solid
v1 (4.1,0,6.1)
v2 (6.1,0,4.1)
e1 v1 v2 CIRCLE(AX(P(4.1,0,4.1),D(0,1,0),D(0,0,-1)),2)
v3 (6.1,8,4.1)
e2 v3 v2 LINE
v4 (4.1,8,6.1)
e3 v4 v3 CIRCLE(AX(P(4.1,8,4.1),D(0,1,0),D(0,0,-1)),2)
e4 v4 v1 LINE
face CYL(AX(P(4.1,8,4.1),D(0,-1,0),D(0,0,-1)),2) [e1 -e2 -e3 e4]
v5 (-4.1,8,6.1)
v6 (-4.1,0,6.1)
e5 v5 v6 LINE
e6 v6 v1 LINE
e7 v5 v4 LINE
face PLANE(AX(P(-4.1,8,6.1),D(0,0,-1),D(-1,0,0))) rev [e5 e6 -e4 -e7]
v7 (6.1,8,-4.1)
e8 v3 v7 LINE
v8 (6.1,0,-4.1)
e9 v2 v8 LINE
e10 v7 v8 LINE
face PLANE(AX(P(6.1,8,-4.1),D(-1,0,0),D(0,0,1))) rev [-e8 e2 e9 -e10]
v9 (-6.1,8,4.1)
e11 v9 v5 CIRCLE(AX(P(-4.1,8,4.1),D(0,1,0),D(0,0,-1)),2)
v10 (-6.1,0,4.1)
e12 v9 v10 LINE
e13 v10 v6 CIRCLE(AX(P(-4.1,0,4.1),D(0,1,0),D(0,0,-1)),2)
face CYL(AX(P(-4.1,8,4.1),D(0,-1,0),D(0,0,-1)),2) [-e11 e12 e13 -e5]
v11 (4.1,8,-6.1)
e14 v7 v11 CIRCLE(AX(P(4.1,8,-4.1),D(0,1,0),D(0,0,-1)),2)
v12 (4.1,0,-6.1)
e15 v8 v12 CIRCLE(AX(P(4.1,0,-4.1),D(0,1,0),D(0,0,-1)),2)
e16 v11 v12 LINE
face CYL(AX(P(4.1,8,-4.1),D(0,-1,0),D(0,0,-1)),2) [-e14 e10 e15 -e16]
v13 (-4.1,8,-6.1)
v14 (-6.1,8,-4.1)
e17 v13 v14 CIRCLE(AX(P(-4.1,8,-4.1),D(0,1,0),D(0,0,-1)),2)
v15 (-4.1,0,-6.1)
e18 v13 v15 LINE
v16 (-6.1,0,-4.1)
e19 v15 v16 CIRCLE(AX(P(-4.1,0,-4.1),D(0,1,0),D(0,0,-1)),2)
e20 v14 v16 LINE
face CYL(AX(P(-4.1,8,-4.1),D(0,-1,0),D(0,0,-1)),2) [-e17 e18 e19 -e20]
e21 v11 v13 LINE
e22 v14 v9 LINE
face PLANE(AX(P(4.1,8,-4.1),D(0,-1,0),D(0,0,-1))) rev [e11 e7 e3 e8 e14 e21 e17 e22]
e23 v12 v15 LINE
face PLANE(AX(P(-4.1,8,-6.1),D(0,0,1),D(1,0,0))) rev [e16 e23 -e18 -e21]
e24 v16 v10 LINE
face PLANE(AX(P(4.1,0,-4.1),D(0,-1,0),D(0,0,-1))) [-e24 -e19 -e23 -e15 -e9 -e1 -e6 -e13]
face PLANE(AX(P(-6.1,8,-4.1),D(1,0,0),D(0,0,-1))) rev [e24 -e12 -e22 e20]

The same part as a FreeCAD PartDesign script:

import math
import FreeCAD as App
import Part
import Sketcher

V = App.Vector

doc = App.newDocument("Part")
body = doc.addObject("PartDesign::Body", "Body")

# Sketch on XZ plane
sketch1 = body.newObject("Sketcher::SketchObject", "Sketch")
sketch1.AttachmentSupport = (doc.getObject("XZ_Plane"), [""])
sketch1.MapMode = "FlatFace"
sketch1.addGeometry(Part.LineSegment(V(4.1, -6.1, 0), V(-4.1, -6.1, 0)), False)
sketch1.addGeometry(Part.ArcOfCircle(Part.Circle(V(-4.1, -4.1, 0), V(0, 0, 1), 2), math.radians(-180), math.radians(-90)), False)
sketch1.addGeometry(Part.LineSegment(V(-6.1, -4.1, 0), V(-6.1, 4.1, 0)), False)
sketch1.addGeometry(Part.ArcOfCircle(Part.Circle(V(-4.1, 4.1, 0), V(0, 0, 1), 2), math.radians(90), math.radians(180)), False)
sketch1.addGeometry(Part.LineSegment(V(-4.1, 6.1, 0), V(4.1, 6.1, 0)), False)
sketch1.addGeometry(Part.ArcOfCircle(Part.Circle(V(4.1, 4.1, 0), V(0, 0, 1), 2), math.radians(0), math.radians(90)), False)
sketch1.addGeometry(Part.LineSegment(V(6.1, 4.1, 0), V(6.1, -4.1, 0)), False)
sketch1.addGeometry(Part.ArcOfCircle(Part.Circle(V(4.1, -4.1, 0), V(0, 0, 1), 2), math.radians(-90), math.radians(0)), False)
sketch1.addConstraint(Sketcher.Constraint("Tangent", 0, 2, 1, 2))
sketch1.addConstraint(Sketcher.Constraint("Tangent", 1, 1, 2, 1))
sketch1.addConstraint(Sketcher.Constraint("Tangent", 2, 2, 3, 2))
sketch1.addConstraint(Sketcher.Constraint("Tangent", 3, 1, 4, 1))
sketch1.addConstraint(Sketcher.Constraint("Tangent", 4, 2, 5, 2))
sketch1.addConstraint(Sketcher.Constraint("Tangent", 5, 1, 6, 1))
sketch1.addConstraint(Sketcher.Constraint("Tangent", 6, 2, 7, 2))
sketch1.addConstraint(Sketcher.Constraint("Tangent", 7, 1, 0, 1))
sketch1.addConstraint(Sketcher.Constraint("Horizontal", 0))
sketch1.addConstraint(Sketcher.Constraint("Vertical", 2))
sketch1.addConstraint(Sketcher.Constraint("Horizontal", 4))
sketch1.addConstraint(Sketcher.Constraint("Vertical", 6))
sketch1.addConstraint(Sketcher.Constraint("Equal", 1, 3))
sketch1.addConstraint(Sketcher.Constraint("Equal", 3, 5))
sketch1.addConstraint(Sketcher.Constraint("Equal", 5, 7))
sketch1.addConstraint(Sketcher.Constraint("Symmetric", 1, 3, 5, 3, -1, 1))
sketch1.addConstraint(Sketcher.Constraint("Equal", 4, 2))
sketch1.addConstraint(Sketcher.Constraint("Radius", 1, 2.0))
sketch1.addConstraint(Sketcher.Constraint("DistanceX", 0, 2, 0, 1, 8.2))
pad1 = body.newObject("PartDesign::Pad", "Pad")
pad1.Profile = sketch1
pad1.Length = 8
pad1.Reversed = True

doc.recompute()
